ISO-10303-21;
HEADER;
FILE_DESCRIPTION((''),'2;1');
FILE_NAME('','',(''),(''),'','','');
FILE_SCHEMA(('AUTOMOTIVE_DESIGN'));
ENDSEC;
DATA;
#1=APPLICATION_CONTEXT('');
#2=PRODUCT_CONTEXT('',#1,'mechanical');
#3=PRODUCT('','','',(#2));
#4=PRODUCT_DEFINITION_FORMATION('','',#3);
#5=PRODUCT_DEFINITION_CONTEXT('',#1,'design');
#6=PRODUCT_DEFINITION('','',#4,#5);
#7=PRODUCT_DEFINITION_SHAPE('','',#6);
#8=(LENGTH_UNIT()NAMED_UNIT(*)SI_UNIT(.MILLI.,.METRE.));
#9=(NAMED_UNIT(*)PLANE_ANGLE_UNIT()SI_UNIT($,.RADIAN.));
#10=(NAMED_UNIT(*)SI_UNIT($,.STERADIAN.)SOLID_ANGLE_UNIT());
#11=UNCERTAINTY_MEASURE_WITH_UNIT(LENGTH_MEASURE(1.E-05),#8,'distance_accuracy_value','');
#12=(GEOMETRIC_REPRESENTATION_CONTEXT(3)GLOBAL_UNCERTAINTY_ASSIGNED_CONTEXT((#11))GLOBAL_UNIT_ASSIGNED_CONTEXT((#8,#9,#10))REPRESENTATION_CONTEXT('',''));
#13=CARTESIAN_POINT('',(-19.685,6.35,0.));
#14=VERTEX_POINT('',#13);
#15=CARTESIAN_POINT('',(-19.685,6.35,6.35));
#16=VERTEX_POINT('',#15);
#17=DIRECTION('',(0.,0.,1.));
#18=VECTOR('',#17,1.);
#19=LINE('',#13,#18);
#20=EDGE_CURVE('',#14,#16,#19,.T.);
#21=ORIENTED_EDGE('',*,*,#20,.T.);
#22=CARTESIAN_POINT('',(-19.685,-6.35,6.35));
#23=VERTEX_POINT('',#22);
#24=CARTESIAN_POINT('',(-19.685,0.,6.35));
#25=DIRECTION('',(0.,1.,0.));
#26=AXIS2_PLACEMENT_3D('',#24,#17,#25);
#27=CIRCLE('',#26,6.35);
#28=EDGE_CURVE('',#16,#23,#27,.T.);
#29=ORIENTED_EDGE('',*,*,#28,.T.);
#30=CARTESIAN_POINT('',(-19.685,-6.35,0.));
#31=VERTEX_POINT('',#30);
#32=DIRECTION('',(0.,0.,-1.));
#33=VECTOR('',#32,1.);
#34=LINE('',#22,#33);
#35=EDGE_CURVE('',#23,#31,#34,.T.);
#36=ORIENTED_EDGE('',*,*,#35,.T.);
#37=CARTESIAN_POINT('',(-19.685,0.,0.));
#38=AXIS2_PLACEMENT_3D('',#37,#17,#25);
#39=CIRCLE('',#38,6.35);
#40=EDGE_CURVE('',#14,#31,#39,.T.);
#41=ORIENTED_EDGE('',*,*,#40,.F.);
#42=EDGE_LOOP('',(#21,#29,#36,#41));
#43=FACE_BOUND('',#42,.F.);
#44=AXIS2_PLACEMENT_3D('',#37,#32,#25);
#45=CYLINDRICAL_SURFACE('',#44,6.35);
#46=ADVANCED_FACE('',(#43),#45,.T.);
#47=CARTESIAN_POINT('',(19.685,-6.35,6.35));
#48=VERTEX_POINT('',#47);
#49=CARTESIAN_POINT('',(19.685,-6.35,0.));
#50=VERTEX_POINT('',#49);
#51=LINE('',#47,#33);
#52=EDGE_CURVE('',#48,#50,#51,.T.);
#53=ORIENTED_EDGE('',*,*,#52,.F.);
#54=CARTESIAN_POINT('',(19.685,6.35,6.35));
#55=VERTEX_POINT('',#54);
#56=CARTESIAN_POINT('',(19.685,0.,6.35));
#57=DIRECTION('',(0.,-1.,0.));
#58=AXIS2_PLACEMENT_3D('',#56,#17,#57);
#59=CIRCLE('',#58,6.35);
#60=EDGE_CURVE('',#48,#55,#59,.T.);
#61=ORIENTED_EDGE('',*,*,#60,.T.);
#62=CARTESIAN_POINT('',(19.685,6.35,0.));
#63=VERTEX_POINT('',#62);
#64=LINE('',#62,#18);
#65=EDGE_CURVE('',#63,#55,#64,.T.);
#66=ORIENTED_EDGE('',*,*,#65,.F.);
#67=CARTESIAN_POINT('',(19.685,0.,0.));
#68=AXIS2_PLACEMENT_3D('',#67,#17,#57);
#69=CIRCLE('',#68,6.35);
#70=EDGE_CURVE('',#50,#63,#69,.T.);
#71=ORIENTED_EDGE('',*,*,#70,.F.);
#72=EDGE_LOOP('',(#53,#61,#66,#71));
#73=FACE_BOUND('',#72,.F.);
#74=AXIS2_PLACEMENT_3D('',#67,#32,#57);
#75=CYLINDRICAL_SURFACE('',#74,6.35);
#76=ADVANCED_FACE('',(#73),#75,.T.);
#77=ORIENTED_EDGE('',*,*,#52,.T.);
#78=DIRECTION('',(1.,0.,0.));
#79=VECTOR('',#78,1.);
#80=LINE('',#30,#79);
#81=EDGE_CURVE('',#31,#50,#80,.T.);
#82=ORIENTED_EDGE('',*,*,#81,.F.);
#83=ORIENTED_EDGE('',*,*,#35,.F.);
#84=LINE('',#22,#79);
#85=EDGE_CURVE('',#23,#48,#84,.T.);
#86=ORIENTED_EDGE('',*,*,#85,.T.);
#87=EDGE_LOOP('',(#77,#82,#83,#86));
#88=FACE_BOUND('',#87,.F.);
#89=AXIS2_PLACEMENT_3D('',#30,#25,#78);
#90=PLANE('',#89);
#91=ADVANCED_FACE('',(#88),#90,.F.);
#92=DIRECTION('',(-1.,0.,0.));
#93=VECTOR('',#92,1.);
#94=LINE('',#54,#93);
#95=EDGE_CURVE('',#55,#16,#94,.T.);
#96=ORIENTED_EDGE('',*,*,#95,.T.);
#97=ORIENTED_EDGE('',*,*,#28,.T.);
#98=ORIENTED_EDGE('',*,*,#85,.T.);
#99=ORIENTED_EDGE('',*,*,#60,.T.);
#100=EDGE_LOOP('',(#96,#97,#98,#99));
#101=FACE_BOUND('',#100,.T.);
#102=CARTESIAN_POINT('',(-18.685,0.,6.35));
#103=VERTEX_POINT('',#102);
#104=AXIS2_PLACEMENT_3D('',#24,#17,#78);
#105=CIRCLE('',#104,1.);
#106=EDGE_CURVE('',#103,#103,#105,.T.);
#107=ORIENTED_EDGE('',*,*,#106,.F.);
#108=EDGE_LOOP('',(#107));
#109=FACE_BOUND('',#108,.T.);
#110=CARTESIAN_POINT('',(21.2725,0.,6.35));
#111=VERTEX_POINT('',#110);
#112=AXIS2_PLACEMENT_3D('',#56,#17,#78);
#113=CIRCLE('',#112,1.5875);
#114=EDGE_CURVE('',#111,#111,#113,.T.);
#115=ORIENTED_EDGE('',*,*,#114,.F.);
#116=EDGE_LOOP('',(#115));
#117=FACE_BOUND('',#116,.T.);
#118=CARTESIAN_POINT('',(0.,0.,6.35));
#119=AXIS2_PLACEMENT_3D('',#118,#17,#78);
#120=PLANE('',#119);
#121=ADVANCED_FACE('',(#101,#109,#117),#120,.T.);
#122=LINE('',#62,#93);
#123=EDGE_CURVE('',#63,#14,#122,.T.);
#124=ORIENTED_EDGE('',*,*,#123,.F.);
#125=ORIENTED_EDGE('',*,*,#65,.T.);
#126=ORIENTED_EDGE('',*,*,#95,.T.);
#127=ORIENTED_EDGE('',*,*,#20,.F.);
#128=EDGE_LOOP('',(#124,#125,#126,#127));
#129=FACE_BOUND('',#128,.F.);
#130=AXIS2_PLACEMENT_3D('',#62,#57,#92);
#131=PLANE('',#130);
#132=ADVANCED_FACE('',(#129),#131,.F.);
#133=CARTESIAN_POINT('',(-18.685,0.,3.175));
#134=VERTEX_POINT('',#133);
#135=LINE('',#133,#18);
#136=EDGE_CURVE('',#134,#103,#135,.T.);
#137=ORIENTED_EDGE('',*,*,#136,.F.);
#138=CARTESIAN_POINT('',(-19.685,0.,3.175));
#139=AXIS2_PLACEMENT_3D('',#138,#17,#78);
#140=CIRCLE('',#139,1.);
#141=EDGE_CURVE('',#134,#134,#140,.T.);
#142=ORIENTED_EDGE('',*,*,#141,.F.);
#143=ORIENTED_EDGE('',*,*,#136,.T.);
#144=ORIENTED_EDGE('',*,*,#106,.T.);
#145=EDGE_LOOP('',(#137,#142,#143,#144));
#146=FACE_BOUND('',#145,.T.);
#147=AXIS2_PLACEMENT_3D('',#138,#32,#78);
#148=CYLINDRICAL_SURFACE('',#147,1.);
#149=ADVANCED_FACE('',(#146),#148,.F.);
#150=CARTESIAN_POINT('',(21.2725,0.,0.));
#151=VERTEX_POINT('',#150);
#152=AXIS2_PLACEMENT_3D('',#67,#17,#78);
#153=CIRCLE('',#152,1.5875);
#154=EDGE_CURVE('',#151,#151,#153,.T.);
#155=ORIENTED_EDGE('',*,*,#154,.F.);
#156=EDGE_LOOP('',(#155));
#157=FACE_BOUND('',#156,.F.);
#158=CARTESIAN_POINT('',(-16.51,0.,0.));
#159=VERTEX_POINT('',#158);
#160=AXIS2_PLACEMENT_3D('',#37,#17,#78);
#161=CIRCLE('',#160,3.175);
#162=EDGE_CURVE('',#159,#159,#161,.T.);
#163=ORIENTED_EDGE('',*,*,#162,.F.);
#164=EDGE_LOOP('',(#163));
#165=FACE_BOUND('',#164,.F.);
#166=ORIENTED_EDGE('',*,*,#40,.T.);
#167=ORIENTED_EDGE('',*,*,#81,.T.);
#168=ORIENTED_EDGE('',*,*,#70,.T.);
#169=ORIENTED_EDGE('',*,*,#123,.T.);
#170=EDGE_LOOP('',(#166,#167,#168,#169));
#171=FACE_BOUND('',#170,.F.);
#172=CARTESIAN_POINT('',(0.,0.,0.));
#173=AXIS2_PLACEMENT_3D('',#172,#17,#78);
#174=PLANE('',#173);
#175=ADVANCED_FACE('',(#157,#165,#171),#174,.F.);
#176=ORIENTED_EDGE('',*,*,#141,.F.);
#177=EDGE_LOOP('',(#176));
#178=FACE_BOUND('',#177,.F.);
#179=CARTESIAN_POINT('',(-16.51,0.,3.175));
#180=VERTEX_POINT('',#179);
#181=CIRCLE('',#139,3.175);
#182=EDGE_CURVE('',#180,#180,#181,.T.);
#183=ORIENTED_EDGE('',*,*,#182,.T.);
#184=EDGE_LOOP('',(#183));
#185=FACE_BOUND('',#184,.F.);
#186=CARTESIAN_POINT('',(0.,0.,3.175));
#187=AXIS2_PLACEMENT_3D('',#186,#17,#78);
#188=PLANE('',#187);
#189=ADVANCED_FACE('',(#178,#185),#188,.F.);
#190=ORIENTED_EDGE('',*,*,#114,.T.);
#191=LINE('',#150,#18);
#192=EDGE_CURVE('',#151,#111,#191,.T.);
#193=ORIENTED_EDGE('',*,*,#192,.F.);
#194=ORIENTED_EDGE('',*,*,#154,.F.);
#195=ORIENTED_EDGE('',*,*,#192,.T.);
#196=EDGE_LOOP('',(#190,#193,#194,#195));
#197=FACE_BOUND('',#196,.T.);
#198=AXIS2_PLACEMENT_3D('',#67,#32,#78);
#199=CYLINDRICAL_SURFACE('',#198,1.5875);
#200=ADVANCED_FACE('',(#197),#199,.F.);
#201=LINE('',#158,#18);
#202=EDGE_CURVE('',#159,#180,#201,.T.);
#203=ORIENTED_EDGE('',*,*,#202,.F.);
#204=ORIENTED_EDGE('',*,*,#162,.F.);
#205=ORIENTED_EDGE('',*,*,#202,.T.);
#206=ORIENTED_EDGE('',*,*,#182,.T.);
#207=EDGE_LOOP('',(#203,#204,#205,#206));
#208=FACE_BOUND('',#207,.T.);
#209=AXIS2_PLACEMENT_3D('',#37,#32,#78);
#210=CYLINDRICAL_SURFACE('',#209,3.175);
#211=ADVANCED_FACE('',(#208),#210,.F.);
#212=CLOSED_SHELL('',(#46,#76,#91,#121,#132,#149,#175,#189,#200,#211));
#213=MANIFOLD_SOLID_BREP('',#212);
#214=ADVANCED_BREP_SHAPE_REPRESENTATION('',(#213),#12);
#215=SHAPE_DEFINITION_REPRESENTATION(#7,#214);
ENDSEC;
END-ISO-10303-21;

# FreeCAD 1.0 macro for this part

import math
import FreeCAD as App
import Part
import Sketcher
from FreeCAD import Vector
Q = App.Units.Quantity

doc = App.newDocument("Part")
body = doc.addObject("PartDesign::Body", "Body")

# Sketch on XY plane
sketch1 = body.newObject("Sketcher::SketchObject", "Sketch")
sketch1.AttachmentSupport = (doc.getObject("XY_Plane"), [""])
sketch1.MapMode = "FlatFace"
sketch1.addGeometry([
    Part.ArcOfCircle(Part.Circle(Vector(19.685, 0, 0), Vector(0, 0, 1), 6.35), math.radians(-90), math.radians(90)),  # 0
    Part.LineSegment(Vector(19.685, 6.35, 0), Vector(-19.685, 6.35, 0)),  # 1
    Part.ArcOfCircle(Part.Circle(Vector(-19.685, 0, 0), Vector(0, 0, 1), 6.35), math.radians(90), math.radians(270)),  # 2
    Part.LineSegment(Vector(-19.685, -6.35, 0), Vector(19.685, -6.35, 0)),  # 3
    Part.Circle(Vector(-19.685, 0, 0), Vector(0, 0, 1), 3.175),  # 4
    Part.Circle(Vector(19.685, 0, 0), Vector(0, 0, 1), 1.5875),  # 5
], False)
sketch1.addConstraint([
    Sketcher.Constraint("Tangent", 0, 2, 1, 1),
    Sketcher.Constraint("Tangent", 1, 2, 2, 1),
    Sketcher.Constraint("Tangent", 2, 2, 3, 1),
    Sketcher.Constraint("Tangent", 3, 2, 0, 1),
    Sketcher.Constraint("Horizontal", 1),
    Sketcher.Constraint("Horizontal", 3),
    Sketcher.Constraint("Coincident", 4, 3, 2, 3),
    Sketcher.Constraint("Coincident", 5, 3, 0, 3),
    Sketcher.Constraint("Symmetric", 0, 3, 2, 3, -1, 1),
    Sketcher.Constraint("Diameter", 4, Q("0.25 in")),
    Sketcher.Constraint("Radius", 0, Q("0.25 in")),
    Sketcher.Constraint("Diameter", 5, Q("0.125 in")),
    Sketcher.Constraint("DistanceX", 1, 2, 1, 1, Q("1.55 in")),
])
pad1 = body.newObject("PartDesign::Pad", "Pad")
pad1.Profile = sketch1
pad1.Length = Q("0.125 in")

# Sketch on XY plane
sketch2 = body.newObject("Sketcher::SketchObject", "Sketch001")
sketch2.AttachmentSupport = (doc.getObject("XY_Plane"), [""])
sketch2.MapMode = "FlatFace"
sketch2.AttachmentOffset = App.Placement(Vector(0, 0, 0.125 * 25.4), App.Rotation())
sketch2.addGeometry([
    Part.LineSegment(Vector(19.685, 6.35, 0), Vector(-19.685, 6.35, 0)),  # 0
    Part.ArcOfCircle(Part.Circle(Vector(-19.685, 0, 0), Vector(0, 0, 1), 6.35), math.radians(90), math.radians(270)),  # 1
    Part.LineSegment(Vector(-19.685, -6.35, 0), Vector(19.685, -6.35, 0)),  # 2
    Part.ArcOfCircle(Part.Circle(Vector(19.685, 0, 0), Vector(0, 0, 1), 6.35), math.radians(-90), math.radians(90)),  # 3
    Part.Circle(Vector(19.685, 0, 0), Vector(0, 0, 1), 1.5875),  # 4
    Part.Circle(Vector(-19.685, 0, 0), Vector(0, 0, 1), 1),  # 5
], False)
sketch2.addConstraint([
    Sketcher.Constraint("Tangent", 0, 2, 1, 1),
    Sketcher.Constraint("Tangent", 1, 2, 2, 1),
    Sketcher.Constraint("Tangent", 2, 2, 3, 1),
    Sketcher.Constraint("Tangent", 3, 2, 0, 1),
    Sketcher.Constraint("Horizontal", 0),
    Sketcher.Constraint("Horizontal", 2),
    Sketcher.Constraint("Coincident", 4, 3, 3, 3),
    Sketcher.Constraint("Coincident", 5, 3, 1, 3),
    Sketcher.Constraint("Symmetric", 1, 3, 3, 3, -1, 1),
    Sketcher.Constraint("Diameter", 5, Q("2 mm")),
    Sketcher.Constraint("Radius", 1, Q("0.25 in")),
    Sketcher.Constraint("Diameter", 4, Q("0.125 in")),
    Sketcher.Constraint("DistanceX", 0, 2, 0, 1, Q("1.55 in")),
])
pad2 = body.newObject("PartDesign::Pad", "Pad001")
pad2.Profile = sketch2
pad2.Length = Q("0.125 in")

doc.recompute()
